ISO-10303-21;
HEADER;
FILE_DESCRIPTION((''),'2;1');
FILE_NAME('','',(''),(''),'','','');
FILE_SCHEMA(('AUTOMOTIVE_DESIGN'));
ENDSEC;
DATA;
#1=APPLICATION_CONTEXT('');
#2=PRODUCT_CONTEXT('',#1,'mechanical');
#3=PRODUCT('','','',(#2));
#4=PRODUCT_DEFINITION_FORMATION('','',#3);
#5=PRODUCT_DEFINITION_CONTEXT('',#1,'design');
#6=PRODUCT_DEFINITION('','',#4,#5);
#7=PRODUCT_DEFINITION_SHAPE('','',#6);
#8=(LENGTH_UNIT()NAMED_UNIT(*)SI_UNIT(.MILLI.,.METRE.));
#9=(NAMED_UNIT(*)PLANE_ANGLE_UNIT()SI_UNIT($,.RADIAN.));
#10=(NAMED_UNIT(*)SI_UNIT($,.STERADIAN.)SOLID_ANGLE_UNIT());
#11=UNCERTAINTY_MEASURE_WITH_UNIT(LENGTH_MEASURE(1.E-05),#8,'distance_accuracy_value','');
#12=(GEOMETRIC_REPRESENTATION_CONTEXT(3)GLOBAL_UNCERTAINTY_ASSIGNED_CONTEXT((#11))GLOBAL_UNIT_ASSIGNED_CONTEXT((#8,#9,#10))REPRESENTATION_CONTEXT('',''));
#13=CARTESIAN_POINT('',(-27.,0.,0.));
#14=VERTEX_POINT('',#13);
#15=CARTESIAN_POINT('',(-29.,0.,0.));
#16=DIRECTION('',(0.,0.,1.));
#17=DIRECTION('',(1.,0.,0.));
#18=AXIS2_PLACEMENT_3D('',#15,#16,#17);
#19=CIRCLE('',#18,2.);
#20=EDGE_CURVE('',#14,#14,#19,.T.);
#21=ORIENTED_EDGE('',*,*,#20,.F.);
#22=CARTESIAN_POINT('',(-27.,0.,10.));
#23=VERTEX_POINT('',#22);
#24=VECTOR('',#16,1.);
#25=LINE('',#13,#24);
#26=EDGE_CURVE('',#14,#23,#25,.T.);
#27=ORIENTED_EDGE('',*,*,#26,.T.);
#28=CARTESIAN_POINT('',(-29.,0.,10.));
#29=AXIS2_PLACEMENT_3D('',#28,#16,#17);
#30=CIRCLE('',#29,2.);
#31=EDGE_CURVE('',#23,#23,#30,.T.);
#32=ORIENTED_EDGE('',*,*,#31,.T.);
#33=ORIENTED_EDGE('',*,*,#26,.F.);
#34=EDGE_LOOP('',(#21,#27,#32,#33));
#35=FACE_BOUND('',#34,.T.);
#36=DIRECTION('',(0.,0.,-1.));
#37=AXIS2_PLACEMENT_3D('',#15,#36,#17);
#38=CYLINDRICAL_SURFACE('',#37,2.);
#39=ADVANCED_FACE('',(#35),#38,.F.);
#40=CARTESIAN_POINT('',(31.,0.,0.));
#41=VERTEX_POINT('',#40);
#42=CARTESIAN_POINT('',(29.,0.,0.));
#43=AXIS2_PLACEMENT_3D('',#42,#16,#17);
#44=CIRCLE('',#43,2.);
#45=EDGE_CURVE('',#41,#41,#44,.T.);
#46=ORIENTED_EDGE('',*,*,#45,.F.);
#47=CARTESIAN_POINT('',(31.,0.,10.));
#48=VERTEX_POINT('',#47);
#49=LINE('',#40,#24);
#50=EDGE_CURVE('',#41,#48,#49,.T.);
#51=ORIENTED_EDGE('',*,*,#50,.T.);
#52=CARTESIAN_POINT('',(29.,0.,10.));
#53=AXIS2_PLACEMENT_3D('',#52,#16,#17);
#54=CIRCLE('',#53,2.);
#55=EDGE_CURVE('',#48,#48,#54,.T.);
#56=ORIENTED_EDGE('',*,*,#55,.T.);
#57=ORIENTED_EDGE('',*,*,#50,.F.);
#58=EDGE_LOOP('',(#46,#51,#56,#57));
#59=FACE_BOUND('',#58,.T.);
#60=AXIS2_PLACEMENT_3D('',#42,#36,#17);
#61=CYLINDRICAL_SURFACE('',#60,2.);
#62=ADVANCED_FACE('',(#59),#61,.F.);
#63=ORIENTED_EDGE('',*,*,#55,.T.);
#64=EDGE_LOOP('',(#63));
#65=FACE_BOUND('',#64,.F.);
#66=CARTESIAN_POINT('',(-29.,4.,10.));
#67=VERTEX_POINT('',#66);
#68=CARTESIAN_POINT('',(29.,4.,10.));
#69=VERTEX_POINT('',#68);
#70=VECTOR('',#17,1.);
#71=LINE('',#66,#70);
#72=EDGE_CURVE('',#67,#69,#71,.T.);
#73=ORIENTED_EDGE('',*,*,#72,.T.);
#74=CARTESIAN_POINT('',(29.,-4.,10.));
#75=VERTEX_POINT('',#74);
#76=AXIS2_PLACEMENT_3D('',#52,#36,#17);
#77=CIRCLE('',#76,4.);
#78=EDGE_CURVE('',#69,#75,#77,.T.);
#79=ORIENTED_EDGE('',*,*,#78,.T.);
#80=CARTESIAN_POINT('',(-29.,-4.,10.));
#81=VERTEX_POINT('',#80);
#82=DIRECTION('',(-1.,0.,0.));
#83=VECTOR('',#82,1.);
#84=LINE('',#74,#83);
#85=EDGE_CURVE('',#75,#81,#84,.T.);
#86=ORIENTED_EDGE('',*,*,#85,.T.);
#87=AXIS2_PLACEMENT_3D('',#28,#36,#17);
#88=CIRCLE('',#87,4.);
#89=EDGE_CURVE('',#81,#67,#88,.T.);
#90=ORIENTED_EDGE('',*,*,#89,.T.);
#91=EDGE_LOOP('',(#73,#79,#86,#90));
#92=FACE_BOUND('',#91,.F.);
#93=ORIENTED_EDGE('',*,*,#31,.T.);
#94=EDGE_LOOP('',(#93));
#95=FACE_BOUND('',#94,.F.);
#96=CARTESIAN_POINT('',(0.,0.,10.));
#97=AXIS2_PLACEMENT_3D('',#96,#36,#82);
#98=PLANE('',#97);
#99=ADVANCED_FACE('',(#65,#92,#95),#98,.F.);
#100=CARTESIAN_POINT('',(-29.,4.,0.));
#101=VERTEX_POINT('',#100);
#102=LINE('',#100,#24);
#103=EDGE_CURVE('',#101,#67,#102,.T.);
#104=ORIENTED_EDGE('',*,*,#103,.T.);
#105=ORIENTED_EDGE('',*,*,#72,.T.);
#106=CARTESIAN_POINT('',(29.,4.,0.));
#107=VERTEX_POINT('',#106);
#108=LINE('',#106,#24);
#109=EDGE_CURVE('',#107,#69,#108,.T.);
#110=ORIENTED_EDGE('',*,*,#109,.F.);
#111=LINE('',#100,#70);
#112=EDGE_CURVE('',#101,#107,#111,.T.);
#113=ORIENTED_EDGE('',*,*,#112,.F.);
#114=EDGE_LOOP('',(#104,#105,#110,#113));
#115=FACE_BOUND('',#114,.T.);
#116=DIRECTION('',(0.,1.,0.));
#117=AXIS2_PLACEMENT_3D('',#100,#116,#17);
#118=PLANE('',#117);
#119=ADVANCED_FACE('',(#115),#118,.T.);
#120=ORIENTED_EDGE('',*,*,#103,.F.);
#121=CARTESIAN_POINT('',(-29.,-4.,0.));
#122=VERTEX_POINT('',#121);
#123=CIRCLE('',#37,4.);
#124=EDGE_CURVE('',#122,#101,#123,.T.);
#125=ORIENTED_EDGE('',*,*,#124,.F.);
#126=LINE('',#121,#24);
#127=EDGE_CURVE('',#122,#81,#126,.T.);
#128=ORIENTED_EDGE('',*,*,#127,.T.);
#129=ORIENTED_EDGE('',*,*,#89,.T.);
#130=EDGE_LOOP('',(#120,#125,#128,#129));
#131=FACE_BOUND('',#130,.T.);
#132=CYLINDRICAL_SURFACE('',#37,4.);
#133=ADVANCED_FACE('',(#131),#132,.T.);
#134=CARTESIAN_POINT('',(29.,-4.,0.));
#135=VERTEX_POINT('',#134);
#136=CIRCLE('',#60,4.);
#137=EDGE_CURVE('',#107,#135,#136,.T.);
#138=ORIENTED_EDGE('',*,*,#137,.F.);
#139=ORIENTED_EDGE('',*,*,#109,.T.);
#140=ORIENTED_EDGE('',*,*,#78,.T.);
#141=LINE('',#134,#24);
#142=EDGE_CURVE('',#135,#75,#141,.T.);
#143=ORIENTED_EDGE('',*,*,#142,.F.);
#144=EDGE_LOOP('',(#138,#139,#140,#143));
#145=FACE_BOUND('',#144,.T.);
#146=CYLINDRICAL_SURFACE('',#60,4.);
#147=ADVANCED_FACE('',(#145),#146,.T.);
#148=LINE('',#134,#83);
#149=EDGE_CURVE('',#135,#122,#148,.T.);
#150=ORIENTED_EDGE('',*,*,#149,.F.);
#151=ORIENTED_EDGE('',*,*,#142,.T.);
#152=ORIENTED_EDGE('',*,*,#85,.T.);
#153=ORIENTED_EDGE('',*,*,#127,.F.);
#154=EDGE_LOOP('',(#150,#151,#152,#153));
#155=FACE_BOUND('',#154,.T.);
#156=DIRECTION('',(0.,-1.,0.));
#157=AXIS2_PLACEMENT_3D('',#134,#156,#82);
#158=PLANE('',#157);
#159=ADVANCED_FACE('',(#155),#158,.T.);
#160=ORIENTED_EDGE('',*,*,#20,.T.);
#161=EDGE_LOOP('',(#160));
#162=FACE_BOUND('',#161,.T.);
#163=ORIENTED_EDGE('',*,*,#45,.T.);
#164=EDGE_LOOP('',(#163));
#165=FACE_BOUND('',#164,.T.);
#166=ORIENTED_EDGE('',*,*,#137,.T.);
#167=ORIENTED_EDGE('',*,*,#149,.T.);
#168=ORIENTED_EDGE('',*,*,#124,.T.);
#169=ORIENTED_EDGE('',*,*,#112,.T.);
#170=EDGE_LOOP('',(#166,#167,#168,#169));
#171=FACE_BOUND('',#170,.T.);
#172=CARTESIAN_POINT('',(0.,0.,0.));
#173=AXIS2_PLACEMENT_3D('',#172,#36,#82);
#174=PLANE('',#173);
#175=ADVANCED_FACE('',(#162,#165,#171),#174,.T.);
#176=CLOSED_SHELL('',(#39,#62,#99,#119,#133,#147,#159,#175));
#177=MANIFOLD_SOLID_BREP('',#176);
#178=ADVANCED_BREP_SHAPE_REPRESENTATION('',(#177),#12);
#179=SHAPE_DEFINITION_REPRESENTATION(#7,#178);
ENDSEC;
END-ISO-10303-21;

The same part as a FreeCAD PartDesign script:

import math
import FreeCAD as App
import Part
import Sketcher

V = App.Vector
Q = App.Units.Quantity

doc = App.newDocument("Part")
body = doc.addObject("PartDesign::Body", "Body")

# Sketch on XY plane
sketch1 = doc.addObject("Sketcher::SketchObject", "Sketch")
body.addObject(sketch1)
sketch1.AttachmentSupport = (doc.XY_Plane, [""])
sketch1.MapMode = "FlatFace"
sketch1.addGeometry([
    Part.LineSegment(V(29, 4, 0), V(-29, 4, 0)),  # 0
    Part.ArcOfCircle(Part.Circle(V(-29, 0, 0), V(0, 0, 1), 4), math.radians(90), math.radians(270)),  # 1
    Part.LineSegment(V(-29, -4, 0), V(29, -4, 0)),  # 2
    Part.ArcOfCircle(Part.Circle(V(29, 0, 0), V(0, 0, 1), 4), math.radians(-90), math.radians(90)),  # 3
    Part.Circle(V(-29, 0, 0), V(0, 0, 1), 2),  # 4
    Part.Circle(V(29, 0, 0), V(0, 0, 1), 2),  # 5
], False)
sketch1.addConstraint([
    Sketcher.Constraint("Tangent", 0, 2, 1, 1),
    Sketcher.Constraint("Tangent", 1, 2, 2, 1),
    Sketcher.Constraint("Tangent", 2, 2, 3, 1),
    Sketcher.Constraint("Tangent", 3, 2, 0, 1),
    Sketcher.Constraint("Horizontal", 0),
    Sketcher.Constraint("Horizontal", 2),
    Sketcher.Constraint("Coincident", 4, 3, 1, 3),
    Sketcher.Constraint("Coincident", 5, 3, 3, 3),
    Sketcher.Constraint("Equal", 4, 5),
    Sketcher.Constraint("Symmetric", 1, 3, 3, 3, -1, 1),
    Sketcher.Constraint("Diameter", 4, Q("4 mm")),
    Sketcher.Constraint("Radius", 1, Q("4 mm")),
    Sketcher.Constraint("DistanceX", 0, 2, 0, 1, Q("58 mm")),
])
pad1 = doc.addObject("PartDesign::Pad", "Pad")
body.addObject(pad1)
pad1.Profile = sketch1
pad1.Length = 10

doc.recompute()
